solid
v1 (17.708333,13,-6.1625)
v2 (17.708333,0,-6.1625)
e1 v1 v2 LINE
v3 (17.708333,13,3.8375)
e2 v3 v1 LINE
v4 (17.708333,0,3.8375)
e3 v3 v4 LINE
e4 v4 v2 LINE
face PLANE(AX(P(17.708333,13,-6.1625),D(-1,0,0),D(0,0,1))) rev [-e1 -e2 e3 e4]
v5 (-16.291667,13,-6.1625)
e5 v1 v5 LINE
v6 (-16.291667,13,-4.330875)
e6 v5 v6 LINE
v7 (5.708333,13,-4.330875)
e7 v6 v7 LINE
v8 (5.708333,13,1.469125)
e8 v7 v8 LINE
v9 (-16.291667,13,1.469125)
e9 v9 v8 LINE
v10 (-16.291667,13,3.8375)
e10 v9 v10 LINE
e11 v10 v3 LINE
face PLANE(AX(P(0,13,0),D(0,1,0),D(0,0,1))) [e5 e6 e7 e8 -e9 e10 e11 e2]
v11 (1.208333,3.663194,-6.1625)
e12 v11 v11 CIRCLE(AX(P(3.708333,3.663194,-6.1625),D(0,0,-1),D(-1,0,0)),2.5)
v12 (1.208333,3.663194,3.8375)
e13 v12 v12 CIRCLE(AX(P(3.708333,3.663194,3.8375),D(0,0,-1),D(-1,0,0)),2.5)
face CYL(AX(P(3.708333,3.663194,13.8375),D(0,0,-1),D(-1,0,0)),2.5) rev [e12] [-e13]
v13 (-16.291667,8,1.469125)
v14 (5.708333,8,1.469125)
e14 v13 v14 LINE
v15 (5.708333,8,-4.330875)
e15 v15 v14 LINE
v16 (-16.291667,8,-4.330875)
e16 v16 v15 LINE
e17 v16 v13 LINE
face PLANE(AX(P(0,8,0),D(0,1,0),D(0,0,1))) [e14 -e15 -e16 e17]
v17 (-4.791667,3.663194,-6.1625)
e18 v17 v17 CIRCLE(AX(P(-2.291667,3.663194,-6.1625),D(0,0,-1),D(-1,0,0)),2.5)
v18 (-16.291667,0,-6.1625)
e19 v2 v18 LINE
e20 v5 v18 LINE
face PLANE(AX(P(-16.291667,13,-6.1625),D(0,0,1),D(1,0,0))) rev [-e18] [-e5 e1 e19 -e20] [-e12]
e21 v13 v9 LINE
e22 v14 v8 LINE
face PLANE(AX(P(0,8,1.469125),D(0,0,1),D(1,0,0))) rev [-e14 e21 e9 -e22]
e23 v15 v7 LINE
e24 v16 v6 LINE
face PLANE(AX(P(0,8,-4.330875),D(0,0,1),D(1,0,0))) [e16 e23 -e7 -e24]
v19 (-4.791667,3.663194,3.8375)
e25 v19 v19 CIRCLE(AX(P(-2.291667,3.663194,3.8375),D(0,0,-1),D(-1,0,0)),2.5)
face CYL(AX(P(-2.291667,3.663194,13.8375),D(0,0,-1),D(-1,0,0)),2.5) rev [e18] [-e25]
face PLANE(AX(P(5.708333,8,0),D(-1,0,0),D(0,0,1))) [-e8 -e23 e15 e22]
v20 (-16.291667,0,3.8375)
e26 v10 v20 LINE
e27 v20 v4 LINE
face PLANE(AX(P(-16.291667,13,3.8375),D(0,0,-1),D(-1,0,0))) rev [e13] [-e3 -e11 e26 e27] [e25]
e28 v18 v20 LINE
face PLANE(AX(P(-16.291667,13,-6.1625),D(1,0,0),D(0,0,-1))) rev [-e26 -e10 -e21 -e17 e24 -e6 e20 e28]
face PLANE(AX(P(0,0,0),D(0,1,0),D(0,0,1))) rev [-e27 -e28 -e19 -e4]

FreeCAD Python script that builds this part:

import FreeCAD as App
import Part
import Sketcher

V = App.Vector

doc = App.newDocument("Part")
body = doc.addObject("PartDesign::Body", "Body")

# Sketch on XZ plane
sketch1 = body.newObject("Sketcher::SketchObject", "Sketch")
sketch1.AttachmentSupport = (doc.getObject("XZ_Plane"), [""])
sketch1.MapMode = "FlatFace"
sketch1.addGeometry(Part.LineSegment(V(-16, -6, 0), V(-16, 4, 0)), False)
sketch1.addGeometry(Part.LineSegment(V(-16, 4, 0), V(18, 4, 0)), False)
sketch1.addGeometry(Part.LineSegment(V(18, 4, 0), V(18, -6, 0)), False)
sketch1.addGeometry(Part.LineSegment(V(18, -6, 0), V(-16, -6, 0)), False)
sketch1.addConstraint(Sketcher.Constraint("Coincident", 0, 2, 1, 1))
sketch1.addConstraint(Sketcher.Constraint("Coincident", 1, 2, 2, 1))
sketch1.addConstraint(Sketcher.Constraint("Coincident", 2, 2, 3, 1))
sketch1.addConstraint(Sketcher.Constraint("Coincident", 3, 2, 0, 1))
sketch1.addConstraint(Sketcher.Constraint("Vertical", 0))
sketch1.addConstraint(Sketcher.Constraint("Horizontal", 1))
sketch1.addConstraint(Sketcher.Constraint("Vertical", 2))
sketch1.addConstraint(Sketcher.Constraint("Horizontal", 3))
sketch1.addConstraint(Sketcher.Constraint("DistanceX", 1, 1, 1, 2, 34.0))
sketch1.addConstraint(Sketcher.Constraint("DistanceY", 0, 1, 0, 2, 10.0))
sketch1.addConstraint(Sketcher.Constraint("DistanceY", -1, 1, 0, 2, 3.8375))
sketch1.addConstraint(Sketcher.Constraint("DistanceX", 0, 2, -1, 1, 16.291667))
pad1 = body.newObject("PartDesign::Pad", "Pad")
pad1.Profile = sketch1
pad1.Length = 13
pad1.Reversed = True

# Sketch on XZ plane
sketch2 = body.newObject("Sketcher::SketchObject", "Sketch001")
sketch2.AttachmentSupport = (doc.getObject("XZ_Plane"), [""])
sketch2.MapMode = "FlatFace"
sketch2.AttachmentOffset = App.Placement(V(0, 0, -13), App.Rotation())
sketch2.addGeometry(Part.LineSegment(V(-16, -4, 0), V(-16, 1, 0)), False)
sketch2.addGeometry(Part.LineSegment(V(-16, 1, 0), V(6, 1, 0)), False)
sketch2.addGeometry(Part.LineSegment(V(6, 1, 0), V(6, -4, 0)), False)
sketch2.addGeometry(Part.LineSegment(V(6, -4, 0), V(-16, -4, 0)), False)
sketch2.addConstraint(Sketcher.Constraint("Coincident", 0, 2, 1, 1))
sketch2.addConstraint(Sketcher.Constraint("Coincident", 1, 2, 2, 1))
sketch2.addConstraint(Sketcher.Constraint("Coincident", 2, 2, 3, 1))
sketch2.addConstraint(Sketcher.Constraint("Coincident", 3, 2, 0, 1))
sketch2.addConstraint(Sketcher.Constraint("Vertical", 0))
sketch2.addConstraint(Sketcher.Constraint("Horizontal", 1))
sketch2.addConstraint(Sketcher.Constraint("Vertical", 2))
sketch2.addConstraint(Sketcher.Constraint("Horizontal", 3))
sketch2.addConstraint(Sketcher.Constraint("DistanceX", 1, 1, 1, 2, 22.0))
sketch2.addConstraint(Sketcher.Constraint("DistanceY", 0, 1, 0, 2, 5.8))
sketch2.addConstraint(Sketcher.Constraint("DistanceX", 0, 2, -1, 1, 16.291667))
sketch2.addConstraint(Sketcher.Constraint("DistanceY", -1, 1, 0, 2, 1.469125))
pocket1 = body.newObject("PartDesign::Pocket", "Pocket")
pocket1.Profile = sketch2
pocket1.Length = 5
pocket1.Reversed = True

# Sketch on XY plane
sketch3 = body.newObject("Sketcher::SketchObject", "Sketch002")
sketch3.AttachmentSupport = (doc.getObject("XY_Plane"), [""])
sketch3.MapMode = "FlatFace"
sketch3.AttachmentOffset = App.Placement(V(0, 0, -6.1625), App.Rotation())
sketch3.addGeometry(Part.Circle(V(-2.3, 3.7, 0), V(0, 0, 1), 2.5), False)
sketch3.addGeometry(Part.Circle(V(3.7, 3.7, 0), V(0, 0, 1), 2.5), False)
sketch3.addConstraint(Sketcher.Constraint("Equal", 0, 1))
sketch3.addConstraint(Sketcher.Constraint("Horizontal", 0, 3, 1, 3))
sketch3.addConstraint(Sketcher.Constraint("Diameter", 0, 5.0))
sketch3.addConstraint(Sketcher.Constraint("DistanceX", 0, 3, 1, 3, 6.0))
sketch3.addConstraint(Sketcher.Constraint("DistanceX", 0, 3, -1, 1, 2.291667))
sketch3.addConstraint(Sketcher.Constraint("DistanceY", -1, 1, 0, 3, 3.663194))
pocket2 = body.newObject("PartDesign::Pocket", "Pocket001")
pocket2.Profile = sketch3
pocket2.Length = 20
pocket2.Reversed = True

doc.recompute()
